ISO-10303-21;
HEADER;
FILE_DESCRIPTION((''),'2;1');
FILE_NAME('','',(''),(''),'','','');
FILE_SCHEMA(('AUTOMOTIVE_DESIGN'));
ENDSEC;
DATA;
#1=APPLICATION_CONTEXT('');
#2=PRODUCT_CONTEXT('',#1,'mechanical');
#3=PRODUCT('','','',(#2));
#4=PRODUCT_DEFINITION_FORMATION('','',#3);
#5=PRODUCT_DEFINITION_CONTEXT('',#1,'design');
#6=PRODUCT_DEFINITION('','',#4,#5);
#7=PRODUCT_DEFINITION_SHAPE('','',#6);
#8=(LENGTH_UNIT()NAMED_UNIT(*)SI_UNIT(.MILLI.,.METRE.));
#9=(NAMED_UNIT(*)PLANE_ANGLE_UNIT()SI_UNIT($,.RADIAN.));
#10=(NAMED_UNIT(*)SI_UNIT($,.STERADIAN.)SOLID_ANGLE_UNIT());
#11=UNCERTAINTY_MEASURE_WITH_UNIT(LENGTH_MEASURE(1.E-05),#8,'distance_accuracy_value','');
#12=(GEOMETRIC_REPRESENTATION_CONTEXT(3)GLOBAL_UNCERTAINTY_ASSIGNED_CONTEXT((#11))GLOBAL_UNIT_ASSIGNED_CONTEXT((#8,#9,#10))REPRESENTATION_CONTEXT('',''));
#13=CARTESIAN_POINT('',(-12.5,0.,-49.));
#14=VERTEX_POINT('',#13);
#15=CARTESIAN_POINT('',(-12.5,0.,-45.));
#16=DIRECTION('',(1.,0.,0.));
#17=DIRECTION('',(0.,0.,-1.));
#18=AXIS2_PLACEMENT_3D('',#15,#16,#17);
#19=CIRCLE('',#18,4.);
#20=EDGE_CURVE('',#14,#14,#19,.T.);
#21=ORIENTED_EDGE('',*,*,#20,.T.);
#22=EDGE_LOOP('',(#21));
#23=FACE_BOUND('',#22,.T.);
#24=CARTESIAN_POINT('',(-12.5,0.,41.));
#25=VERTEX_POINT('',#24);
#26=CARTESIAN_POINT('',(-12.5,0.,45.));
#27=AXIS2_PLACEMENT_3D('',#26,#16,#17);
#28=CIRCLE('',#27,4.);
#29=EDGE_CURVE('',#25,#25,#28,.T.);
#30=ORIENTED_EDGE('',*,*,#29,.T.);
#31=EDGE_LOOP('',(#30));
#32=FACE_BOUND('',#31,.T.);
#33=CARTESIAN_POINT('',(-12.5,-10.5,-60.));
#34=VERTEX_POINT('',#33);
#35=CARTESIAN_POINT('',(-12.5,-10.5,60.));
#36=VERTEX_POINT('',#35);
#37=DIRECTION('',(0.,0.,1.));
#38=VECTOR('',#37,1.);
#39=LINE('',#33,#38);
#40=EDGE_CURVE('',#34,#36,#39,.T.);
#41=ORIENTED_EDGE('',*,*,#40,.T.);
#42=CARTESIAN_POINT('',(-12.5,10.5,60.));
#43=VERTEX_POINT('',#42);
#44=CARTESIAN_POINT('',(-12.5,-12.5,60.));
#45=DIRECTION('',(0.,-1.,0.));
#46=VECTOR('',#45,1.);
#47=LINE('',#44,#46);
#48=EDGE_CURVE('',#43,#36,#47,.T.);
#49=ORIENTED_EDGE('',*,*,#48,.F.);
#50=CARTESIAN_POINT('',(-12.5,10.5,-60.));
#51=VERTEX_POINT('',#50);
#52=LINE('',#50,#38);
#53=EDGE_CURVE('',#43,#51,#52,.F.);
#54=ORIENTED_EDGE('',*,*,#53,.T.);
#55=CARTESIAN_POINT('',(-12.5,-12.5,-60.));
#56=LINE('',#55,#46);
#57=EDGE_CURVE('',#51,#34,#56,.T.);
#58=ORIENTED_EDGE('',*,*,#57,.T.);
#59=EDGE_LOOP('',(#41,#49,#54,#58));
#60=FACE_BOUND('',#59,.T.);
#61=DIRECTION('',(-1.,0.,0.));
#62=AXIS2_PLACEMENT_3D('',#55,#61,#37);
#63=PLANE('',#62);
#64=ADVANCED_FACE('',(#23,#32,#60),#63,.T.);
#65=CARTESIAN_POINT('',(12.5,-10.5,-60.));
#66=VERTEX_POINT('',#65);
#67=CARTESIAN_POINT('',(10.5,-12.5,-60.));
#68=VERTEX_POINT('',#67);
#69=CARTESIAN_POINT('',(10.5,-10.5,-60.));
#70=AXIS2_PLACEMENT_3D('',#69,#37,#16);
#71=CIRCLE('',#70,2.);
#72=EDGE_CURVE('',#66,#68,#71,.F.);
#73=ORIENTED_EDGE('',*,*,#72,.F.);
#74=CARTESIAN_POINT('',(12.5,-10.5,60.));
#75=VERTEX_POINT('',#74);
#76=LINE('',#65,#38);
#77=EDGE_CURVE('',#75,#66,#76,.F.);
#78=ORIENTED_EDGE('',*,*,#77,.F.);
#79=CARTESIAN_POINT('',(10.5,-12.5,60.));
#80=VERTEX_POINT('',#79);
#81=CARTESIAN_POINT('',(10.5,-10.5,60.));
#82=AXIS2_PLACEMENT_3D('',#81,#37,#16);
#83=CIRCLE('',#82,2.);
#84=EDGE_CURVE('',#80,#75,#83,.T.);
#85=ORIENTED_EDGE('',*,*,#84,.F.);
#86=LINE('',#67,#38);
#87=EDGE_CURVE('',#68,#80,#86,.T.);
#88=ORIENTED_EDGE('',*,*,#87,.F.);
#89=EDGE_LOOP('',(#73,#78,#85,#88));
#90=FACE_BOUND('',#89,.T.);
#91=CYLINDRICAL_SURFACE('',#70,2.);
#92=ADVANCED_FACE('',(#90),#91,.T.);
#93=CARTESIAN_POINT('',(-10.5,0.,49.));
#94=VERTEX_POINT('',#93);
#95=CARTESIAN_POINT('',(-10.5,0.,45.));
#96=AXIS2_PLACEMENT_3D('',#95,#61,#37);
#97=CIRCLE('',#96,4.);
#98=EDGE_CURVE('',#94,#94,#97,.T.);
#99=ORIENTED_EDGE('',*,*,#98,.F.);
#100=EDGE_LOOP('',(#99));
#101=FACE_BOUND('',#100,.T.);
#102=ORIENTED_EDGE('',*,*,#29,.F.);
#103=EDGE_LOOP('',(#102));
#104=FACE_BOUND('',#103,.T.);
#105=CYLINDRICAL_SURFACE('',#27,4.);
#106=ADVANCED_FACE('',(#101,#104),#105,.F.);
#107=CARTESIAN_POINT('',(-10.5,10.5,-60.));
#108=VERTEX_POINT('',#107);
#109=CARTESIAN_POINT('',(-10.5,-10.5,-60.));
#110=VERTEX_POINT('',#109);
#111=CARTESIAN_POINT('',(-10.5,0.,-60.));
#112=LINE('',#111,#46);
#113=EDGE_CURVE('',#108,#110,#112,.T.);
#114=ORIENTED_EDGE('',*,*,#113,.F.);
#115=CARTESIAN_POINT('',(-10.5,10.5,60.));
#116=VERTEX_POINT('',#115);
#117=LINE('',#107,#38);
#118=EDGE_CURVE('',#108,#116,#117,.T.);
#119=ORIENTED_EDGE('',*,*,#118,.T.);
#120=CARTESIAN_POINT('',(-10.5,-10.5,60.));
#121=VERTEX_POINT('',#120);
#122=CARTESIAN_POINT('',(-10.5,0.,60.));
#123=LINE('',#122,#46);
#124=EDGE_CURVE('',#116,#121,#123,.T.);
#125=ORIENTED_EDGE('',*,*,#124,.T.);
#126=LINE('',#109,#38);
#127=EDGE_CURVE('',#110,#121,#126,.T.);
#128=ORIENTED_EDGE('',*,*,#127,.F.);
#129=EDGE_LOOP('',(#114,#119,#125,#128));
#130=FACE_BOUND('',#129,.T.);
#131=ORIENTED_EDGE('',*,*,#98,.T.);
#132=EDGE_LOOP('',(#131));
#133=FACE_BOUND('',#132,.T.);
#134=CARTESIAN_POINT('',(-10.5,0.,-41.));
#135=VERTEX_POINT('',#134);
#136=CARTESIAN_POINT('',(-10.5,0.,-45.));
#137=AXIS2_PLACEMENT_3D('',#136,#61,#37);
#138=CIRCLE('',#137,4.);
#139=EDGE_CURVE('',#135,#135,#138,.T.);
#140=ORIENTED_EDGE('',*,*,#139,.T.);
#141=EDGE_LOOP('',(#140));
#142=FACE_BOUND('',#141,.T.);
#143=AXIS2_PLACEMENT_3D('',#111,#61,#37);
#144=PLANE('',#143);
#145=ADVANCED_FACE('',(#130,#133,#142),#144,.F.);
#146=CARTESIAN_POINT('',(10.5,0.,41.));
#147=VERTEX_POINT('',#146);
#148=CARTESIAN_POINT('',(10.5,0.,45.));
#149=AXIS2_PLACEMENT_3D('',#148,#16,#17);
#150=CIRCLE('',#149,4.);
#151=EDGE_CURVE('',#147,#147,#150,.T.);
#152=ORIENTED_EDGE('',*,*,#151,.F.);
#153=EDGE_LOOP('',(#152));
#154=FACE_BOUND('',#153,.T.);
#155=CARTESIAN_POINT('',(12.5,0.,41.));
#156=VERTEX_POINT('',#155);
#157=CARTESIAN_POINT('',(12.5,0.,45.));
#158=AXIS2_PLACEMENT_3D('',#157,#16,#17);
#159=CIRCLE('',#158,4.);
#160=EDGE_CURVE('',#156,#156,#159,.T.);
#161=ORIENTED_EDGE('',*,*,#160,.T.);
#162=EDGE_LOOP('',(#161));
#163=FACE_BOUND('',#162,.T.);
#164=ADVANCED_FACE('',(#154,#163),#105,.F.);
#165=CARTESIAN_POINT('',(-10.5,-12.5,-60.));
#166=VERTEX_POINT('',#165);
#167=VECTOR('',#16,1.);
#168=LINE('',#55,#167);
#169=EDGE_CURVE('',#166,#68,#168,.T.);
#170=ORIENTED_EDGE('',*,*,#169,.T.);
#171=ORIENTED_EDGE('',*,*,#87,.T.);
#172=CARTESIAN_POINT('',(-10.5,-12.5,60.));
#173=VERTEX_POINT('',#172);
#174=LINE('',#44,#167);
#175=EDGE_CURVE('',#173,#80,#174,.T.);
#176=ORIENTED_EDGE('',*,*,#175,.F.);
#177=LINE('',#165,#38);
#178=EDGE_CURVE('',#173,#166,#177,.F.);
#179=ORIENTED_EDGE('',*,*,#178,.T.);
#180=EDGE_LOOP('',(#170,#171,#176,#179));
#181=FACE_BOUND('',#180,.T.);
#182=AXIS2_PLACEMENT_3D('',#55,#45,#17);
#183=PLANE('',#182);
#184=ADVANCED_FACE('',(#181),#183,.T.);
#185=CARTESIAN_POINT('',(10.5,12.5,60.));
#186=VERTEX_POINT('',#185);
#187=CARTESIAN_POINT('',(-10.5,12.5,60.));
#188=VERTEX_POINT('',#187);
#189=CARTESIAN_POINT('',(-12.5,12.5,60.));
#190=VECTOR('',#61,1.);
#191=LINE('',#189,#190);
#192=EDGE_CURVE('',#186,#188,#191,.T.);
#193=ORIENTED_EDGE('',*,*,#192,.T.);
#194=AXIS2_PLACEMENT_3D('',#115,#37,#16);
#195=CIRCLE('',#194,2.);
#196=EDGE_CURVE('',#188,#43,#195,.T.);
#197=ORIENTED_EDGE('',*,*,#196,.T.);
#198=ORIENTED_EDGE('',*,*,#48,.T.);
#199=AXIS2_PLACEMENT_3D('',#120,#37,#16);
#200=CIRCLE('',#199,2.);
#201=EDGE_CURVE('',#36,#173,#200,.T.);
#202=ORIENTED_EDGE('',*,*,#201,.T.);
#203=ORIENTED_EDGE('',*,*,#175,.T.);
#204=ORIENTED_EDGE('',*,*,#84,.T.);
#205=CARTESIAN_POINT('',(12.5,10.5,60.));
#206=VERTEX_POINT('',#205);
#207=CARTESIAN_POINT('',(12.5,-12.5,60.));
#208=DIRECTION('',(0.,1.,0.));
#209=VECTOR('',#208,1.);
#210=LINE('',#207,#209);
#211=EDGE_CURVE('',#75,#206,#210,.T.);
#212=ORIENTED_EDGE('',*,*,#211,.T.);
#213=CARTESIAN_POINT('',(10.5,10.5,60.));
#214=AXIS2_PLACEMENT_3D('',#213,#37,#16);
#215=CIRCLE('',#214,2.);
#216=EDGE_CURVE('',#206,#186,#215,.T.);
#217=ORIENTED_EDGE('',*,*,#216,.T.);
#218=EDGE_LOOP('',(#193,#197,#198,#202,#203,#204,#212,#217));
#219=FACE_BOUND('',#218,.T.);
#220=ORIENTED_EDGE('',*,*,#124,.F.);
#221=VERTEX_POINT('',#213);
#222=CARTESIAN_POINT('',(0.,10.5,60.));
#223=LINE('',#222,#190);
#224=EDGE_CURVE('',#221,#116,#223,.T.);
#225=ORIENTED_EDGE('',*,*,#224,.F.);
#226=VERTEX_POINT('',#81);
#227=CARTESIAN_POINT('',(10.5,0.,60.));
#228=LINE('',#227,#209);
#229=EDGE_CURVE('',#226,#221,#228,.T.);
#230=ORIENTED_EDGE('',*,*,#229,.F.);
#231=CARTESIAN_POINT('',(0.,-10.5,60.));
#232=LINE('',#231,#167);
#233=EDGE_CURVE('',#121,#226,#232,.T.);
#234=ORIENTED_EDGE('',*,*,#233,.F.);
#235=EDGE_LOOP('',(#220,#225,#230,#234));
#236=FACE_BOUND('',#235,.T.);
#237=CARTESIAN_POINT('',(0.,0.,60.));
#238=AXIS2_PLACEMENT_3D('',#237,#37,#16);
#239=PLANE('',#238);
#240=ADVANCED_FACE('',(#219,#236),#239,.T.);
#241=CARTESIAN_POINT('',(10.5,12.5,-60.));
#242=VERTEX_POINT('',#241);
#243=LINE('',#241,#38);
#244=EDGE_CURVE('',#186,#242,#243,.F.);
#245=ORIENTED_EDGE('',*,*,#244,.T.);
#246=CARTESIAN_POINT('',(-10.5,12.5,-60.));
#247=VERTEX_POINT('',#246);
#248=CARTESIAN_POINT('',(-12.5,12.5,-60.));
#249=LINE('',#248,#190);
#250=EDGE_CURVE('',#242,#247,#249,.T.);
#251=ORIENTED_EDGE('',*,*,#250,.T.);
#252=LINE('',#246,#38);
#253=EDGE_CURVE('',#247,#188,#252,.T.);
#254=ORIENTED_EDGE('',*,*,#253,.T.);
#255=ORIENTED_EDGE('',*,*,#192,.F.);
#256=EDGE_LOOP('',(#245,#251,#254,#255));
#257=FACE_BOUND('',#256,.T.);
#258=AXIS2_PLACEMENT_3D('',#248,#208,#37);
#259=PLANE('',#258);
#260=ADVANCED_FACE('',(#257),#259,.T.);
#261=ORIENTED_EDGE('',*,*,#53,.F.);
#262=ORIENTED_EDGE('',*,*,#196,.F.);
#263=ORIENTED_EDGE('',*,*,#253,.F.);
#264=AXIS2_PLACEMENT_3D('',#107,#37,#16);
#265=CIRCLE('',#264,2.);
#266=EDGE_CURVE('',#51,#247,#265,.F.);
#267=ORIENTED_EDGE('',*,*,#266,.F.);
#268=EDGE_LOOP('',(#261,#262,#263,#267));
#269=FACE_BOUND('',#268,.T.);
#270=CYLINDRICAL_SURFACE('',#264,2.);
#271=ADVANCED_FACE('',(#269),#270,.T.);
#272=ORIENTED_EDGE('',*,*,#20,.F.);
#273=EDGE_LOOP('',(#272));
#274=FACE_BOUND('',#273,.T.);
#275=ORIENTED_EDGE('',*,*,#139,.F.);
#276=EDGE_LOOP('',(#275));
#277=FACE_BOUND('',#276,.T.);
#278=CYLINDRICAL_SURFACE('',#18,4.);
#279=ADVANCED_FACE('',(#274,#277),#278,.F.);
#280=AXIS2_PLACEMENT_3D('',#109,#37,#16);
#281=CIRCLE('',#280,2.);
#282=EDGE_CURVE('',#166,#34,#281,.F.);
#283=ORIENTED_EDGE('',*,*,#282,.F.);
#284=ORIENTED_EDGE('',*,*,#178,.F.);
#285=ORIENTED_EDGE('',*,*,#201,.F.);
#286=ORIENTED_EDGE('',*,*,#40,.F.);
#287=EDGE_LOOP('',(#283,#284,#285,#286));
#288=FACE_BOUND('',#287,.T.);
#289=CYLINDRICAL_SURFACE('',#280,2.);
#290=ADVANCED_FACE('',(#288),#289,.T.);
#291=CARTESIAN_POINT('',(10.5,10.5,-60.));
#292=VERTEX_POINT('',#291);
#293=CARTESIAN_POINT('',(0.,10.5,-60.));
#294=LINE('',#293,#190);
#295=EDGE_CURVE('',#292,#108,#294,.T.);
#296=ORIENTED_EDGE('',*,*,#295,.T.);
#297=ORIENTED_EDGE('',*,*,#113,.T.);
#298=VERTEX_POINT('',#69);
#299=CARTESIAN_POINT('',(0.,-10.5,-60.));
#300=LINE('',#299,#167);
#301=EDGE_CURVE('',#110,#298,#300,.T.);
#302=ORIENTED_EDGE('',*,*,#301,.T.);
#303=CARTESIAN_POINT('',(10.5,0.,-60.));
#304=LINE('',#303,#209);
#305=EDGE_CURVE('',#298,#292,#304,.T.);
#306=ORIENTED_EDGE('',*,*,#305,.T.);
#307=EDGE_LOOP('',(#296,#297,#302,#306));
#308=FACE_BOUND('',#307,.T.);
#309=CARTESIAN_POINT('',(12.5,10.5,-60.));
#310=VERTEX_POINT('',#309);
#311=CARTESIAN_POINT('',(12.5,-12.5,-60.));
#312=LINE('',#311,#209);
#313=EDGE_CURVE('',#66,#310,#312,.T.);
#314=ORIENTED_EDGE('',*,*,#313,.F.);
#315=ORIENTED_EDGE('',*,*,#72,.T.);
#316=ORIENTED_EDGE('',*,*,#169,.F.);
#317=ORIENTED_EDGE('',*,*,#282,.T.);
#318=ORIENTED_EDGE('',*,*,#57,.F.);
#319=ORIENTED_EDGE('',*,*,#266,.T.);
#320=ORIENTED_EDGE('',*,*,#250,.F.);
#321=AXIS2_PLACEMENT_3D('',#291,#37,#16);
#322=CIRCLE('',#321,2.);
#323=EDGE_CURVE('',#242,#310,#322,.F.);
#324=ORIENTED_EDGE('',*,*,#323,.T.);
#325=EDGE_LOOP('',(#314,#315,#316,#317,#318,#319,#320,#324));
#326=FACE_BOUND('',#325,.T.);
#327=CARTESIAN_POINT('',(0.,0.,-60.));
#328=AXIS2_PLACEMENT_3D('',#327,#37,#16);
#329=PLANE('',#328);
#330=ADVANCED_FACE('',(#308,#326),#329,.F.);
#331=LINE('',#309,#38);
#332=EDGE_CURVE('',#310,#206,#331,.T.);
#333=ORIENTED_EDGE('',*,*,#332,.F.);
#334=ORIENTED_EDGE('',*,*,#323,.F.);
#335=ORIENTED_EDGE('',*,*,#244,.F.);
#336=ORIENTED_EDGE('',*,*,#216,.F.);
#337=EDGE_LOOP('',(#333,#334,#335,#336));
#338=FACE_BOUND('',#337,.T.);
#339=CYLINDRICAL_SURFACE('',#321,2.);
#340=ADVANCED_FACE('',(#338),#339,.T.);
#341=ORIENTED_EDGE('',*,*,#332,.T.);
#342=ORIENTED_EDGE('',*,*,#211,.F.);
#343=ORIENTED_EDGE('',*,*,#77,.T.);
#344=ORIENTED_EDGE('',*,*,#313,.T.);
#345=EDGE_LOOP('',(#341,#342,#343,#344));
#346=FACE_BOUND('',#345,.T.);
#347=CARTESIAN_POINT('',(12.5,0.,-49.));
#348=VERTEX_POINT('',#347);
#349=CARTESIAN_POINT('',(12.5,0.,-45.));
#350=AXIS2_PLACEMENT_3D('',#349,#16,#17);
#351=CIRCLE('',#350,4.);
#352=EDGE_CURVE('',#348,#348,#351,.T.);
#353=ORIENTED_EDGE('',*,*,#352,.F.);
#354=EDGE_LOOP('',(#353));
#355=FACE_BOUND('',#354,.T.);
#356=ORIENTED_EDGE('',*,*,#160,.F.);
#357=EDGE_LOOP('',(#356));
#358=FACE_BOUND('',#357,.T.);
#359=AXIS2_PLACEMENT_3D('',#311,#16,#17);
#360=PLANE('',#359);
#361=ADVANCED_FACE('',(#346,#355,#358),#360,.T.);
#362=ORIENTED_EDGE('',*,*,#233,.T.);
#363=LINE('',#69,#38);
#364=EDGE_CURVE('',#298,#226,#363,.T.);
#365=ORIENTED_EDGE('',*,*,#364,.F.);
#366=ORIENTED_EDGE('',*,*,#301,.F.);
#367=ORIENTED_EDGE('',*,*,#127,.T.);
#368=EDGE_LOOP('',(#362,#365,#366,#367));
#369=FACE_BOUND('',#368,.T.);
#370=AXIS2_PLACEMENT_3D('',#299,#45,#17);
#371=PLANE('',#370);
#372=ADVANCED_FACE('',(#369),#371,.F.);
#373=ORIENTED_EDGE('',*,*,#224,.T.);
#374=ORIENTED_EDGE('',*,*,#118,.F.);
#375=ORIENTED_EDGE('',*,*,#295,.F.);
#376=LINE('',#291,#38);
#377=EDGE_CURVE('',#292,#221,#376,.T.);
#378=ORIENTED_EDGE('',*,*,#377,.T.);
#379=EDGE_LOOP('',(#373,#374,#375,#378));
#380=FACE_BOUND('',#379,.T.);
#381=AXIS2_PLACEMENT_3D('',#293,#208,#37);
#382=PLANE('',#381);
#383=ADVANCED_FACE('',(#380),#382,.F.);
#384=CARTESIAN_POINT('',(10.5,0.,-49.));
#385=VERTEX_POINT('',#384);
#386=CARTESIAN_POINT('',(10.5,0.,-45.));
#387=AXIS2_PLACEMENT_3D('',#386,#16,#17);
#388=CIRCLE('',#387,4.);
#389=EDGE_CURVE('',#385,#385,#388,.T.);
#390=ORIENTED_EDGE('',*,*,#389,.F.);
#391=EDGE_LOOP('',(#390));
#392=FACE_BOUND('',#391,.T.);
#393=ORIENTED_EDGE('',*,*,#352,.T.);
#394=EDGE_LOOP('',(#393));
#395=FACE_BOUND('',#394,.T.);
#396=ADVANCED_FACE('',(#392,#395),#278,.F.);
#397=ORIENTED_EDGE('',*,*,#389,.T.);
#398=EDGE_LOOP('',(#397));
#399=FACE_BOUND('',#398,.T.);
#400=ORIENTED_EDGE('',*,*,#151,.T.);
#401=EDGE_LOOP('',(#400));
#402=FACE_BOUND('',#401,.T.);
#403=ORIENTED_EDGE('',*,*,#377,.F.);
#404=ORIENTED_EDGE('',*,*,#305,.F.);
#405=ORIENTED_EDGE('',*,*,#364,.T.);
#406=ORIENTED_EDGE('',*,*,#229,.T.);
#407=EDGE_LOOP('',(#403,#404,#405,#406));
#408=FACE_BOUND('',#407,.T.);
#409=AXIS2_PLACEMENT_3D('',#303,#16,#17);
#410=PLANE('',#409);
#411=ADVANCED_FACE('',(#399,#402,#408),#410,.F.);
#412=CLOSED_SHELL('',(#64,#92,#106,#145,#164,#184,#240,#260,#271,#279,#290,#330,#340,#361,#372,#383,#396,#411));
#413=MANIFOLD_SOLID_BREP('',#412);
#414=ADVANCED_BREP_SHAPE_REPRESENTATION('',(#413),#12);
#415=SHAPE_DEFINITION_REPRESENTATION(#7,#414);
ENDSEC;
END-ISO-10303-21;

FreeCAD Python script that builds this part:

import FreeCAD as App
import Part
import Sketcher
from FreeCAD import Vector
Q = App.Units.Quantity


def edges_at(feature, points):
    """Names of the edges that pass closest to the given points."""
    edges = feature.Shape.Edges
    near = lambda p: min(range(len(edges)), key=lambda i: edges[i].distToShape(Part.Vertex(*p))[0])
    return sorted({f"Edge{near(p) + 1}" for p in points})

doc = App.newDocument("Part")
body = doc.addObject("PartDesign::Body", "Body")

sketch1 = body.newObject("Sketcher::SketchObject", "Sketch")
sketch1.AttachmentSupport = (doc.getObject("XY_Plane"), [""])
sketch1.MapMode = "FlatFace"
sketch1.addGeometry(Part.LineSegment(Vector(-12, 12, 0), Vector(-12, -12, 0)), False)
sketch1.addGeometry(Part.LineSegment(Vector(-12, -12, 0), Vector(12, -12, 0)), False)
sketch1.addGeometry(Part.LineSegment(Vector(12, -12, 0), Vector(12, 12, 0)), False)
sketch1.addGeometry(Part.LineSegment(Vector(12, 12, 0), Vector(-12, 12, 0)), False)
sketch1.addGeometry(Part.LineSegment(Vector(10, -10, 0), Vector(-10, -10, 0)), False)
sketch1.addGeometry(Part.LineSegment(Vector(-10, -10, 0), Vector(-10, 10, 0)), False)
sketch1.addGeometry(Part.LineSegment(Vector(-10, 10, 0), Vector(10, 10, 0)), False)
sketch1.addGeometry(Part.LineSegment(Vector(10, 10, 0), Vector(10, -10, 0)), False)
sketch1.addConstraint(Sketcher.Constraint("Coincident", 0, 2, 1, 1))
sketch1.addConstraint(Sketcher.Constraint("Coincident", 1, 2, 2, 1))
sketch1.addConstraint(Sketcher.Constraint("Coincident", 2, 2, 3, 1))
sketch1.addConstraint(Sketcher.Constraint("Coincident", 3, 2, 0, 1))
sketch1.addConstraint(Sketcher.Constraint("Coincident", 4, 2, 5, 1))
sketch1.addConstraint(Sketcher.Constraint("Coincident", 5, 2, 6, 1))
sketch1.addConstraint(Sketcher.Constraint("Coincident", 6, 2, 7, 1))
sketch1.addConstraint(Sketcher.Constraint("Coincident", 7, 2, 4, 1))
sketch1.addConstraint(Sketcher.Constraint("Vertical", 0))
sketch1.addConstraint(Sketcher.Constraint("Horizontal", 1))
sketch1.addConstraint(Sketcher.Constraint("Vertical", 2))
sketch1.addConstraint(Sketcher.Constraint("Horizontal", 3))
sketch1.addConstraint(Sketcher.Constraint("Horizontal", 4))
sketch1.addConstraint(Sketcher.Constraint("Vertical", 5))
sketch1.addConstraint(Sketcher.Constraint("Horizontal", 6))
sketch1.addConstraint(Sketcher.Constraint("Vertical", 7))
sketch1.addConstraint(Sketcher.Constraint("Symmetric", 0, 2, 2, 2, -1, 1))
sketch1.addConstraint(Sketcher.Constraint("Symmetric", 4, 2, 6, 2, -1, 1))
sketch1.addConstraint(Sketcher.Constraint("Equal", 3, 0))
sketch1.addConstraint(Sketcher.Constraint("Equal", 6, 5))
sketch1.addConstraint(Sketcher.Constraint("DistanceX", 1, 1, 1, 2, Q("25 mm")))
sketch1.addConstraint(Sketcher.Constraint("DistanceX", 4, 2, 4, 1, Q("21 mm")))
pad1 = body.newObject("PartDesign::Pad", "Pad")
pad1.Profile = sketch1
pad1.Type = "TwoLengths"
pad1.Length = 60
pad1.Length2 = 60
doc.recompute()

fillet = body.newObject("PartDesign::Fillet", "Fillet")
fillet.Base = (pad1, edges_at(pad1, [
    (12.5, -12.5, 0),
    (-12.5, -12.5, 0),
    (-12.5, 12.5, 0),
    (12.5, 12.5, 0),
]))
fillet.Radius = 2

sketch2 = body.newObject("Sketcher::SketchObject", "Sketch001")
sketch2.AttachmentSupport = (doc.getObject("YZ_Plane"), [""])
sketch2.MapMode = "FlatFace"
sketch2.AttachmentOffset = App.Placement(Vector(0, 0, 12.5), App.Rotation())
sketch2.addGeometry(Part.Circle(Vector(0, 45, 0), Vector(0, 0, 1), 4), False)
sketch2.addGeometry(Part.Circle(Vector(0, -45, 0), Vector(0, 0, 1), 4), False)
sketch2.addConstraint(Sketcher.Constraint("Equal", 0, 1))
sketch2.addConstraint(Sketcher.Constraint("Symmetric", 0, 3, 1, 3, -1, 1))
sketch2.addConstraint(Sketcher.Constraint("PointOnObject", 0, 3, -2))
sketch2.addConstraint(Sketcher.Constraint("Diameter", 0, Q("8 mm")))
sketch2.addConstraint(Sketcher.Constraint("DistanceY", -1, 1, 0, 3, Q("45 mm")))
pocket1 = body.newObject("PartDesign::Pocket", "Pocket")
pocket1.Profile = sketch2
pocket1.Type = "ThroughAll"

doc.recompute()
